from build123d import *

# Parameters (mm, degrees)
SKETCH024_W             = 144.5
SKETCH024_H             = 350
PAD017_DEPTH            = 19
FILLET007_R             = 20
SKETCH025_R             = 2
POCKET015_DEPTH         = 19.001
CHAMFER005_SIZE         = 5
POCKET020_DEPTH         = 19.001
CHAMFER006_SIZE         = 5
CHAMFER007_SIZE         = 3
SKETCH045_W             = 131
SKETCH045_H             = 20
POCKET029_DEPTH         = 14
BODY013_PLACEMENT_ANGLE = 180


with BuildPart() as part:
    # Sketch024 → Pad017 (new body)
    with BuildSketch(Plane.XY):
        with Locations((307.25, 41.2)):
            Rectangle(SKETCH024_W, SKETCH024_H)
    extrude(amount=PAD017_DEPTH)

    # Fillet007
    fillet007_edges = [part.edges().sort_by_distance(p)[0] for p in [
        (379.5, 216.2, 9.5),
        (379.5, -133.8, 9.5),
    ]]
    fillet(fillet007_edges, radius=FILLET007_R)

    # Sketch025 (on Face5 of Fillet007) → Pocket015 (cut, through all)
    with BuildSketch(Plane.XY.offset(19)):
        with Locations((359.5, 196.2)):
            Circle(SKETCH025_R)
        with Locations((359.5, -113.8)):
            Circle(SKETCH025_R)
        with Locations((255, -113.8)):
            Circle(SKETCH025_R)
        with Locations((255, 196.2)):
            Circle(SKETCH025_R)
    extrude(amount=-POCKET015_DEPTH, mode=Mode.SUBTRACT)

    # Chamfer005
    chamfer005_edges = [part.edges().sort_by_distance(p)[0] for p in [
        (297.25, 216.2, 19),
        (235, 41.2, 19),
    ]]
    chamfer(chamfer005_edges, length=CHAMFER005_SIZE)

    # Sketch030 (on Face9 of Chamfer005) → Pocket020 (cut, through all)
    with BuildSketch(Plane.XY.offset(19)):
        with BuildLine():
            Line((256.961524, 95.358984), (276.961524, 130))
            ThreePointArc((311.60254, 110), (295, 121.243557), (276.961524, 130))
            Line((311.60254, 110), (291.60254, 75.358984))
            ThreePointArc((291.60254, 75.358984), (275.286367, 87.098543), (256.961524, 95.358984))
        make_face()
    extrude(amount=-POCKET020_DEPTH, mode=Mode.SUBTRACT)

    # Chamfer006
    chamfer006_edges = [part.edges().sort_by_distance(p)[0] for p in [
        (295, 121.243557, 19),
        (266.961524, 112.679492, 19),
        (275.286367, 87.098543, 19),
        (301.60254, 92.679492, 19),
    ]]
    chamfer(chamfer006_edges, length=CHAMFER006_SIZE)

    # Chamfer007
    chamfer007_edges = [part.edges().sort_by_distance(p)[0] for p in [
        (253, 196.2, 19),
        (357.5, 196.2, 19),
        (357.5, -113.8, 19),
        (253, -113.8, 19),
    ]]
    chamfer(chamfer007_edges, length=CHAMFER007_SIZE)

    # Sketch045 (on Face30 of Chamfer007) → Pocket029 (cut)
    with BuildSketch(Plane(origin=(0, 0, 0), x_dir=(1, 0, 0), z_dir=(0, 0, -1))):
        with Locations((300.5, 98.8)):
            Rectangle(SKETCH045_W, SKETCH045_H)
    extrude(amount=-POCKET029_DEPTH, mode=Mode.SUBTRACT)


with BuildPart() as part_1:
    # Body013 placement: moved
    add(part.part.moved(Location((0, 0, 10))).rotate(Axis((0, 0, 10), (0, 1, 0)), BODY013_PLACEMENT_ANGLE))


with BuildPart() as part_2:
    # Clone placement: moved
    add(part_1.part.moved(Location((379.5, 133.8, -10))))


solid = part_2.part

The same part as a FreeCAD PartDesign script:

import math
import FreeCAD as App
import Part
import Sketcher
from FreeCAD import Vector
Q = App.Units.Quantity


def edges_at(feature, points):
    """Names of the edges that pass closest to the given points."""
    edges = feature.Shape.Edges
    near = lambda p: min(range(len(edges)), key=lambda i: edges[i].distToShape(Part.Vertex(*p))[0])
    return sorted({f"Edge{near(p) + 1}" for p in points})

doc = App.newDocument("Part")
body = doc.addObject("PartDesign::Body", "Body")

# Sketch on XY plane
sketch1 = body.newObject("Sketcher::SketchObject", "Sketch")
sketch1.AttachmentSupport = (doc.getObject("XY_Plane"), [""])
sketch1.MapMode = "FlatFace"
sketch1.addGeometry(Part.LineSegment(Vector(235, 216, 0), Vector(235, -134, 0)), False)
sketch1.addGeometry(Part.LineSegment(Vector(235, -134, 0), Vector(380, -134, 0)), False)
sketch1.addGeometry(Part.LineSegment(Vector(380, -134, 0), Vector(380, 216, 0)), False)
sketch1.addGeometry(Part.LineSegment(Vector(380, 216, 0), Vector(235, 216, 0)), False)
sketch1.addConstraint(Sketcher.Constraint("Coincident", 0, 2, 1, 1))
sketch1.addConstraint(Sketcher.Constraint("Coincident", 1, 2, 2, 1))
sketch1.addConstraint(Sketcher.Constraint("Coincident", 2, 2, 3, 1))
sketch1.addConstraint(Sketcher.Constraint("Coincident", 3, 2, 0, 1))
sketch1.addConstraint(Sketcher.Constraint("Vertical", 0))
sketch1.addConstraint(Sketcher.Constraint("Horizontal", 1))
sketch1.addConstraint(Sketcher.Constraint("Vertical", 2))
sketch1.addConstraint(Sketcher.Constraint("Horizontal", 3))
sketch1.addConstraint(Sketcher.Constraint("DistanceY", 0, 2, 0, 1, 350.0))
sketch1.addConstraint(Sketcher.Constraint("DistanceX", 1, 1, 1, 2, 144.5))
sketch1.addConstraint(Sketcher.Constraint("DistanceX", -1, 1, 0, 2, 235.0))
sketch1.addConstraint(Sketcher.Constraint("DistanceY", 0, 2, -1, 1, 133.8))
pad1 = body.newObject("PartDesign::Pad", "Pad")
pad1.Profile = sketch1
pad1.Length = 19
doc.recompute()

fillet = body.newObject("PartDesign::Fillet", "Fillet")
fillet.Base = (pad1, edges_at(pad1, [(379.5, 216.2, 9.5), (379.5, -133.8, 9.5)]))
fillet.Radius = 20

# Sketch on XY plane
sketch2 = body.newObject("Sketcher::SketchObject", "Sketch001")
sketch2.AttachmentSupport = (doc.getObject("XY_Plane"), [""])
sketch2.MapMode = "FlatFace"
sketch2.AttachmentOffset = App.Placement(Vector(0, 0, 19), App.Rotation())
sketch2.addGeometry(Part.Circle(Vector(359.5, 196.2, 0), Vector(0, 0, 1), 2), False)
sketch2.addGeometry(Part.Circle(Vector(359.5, -113.8, 0), Vector(0, 0, 1), 2), False)
sketch2.addGeometry(Part.Circle(Vector(255, -113.8, 0), Vector(0, 0, 1), 2), False)
sketch2.addGeometry(Part.Circle(Vector(255, 196.2, 0), Vector(0, 0, 1), 2), False)
sketch2.addConstraint(Sketcher.Constraint("Equal", 0, 1))
sketch2.addConstraint(Sketcher.Constraint("Equal", 1, 2))
sketch2.addConstraint(Sketcher.Constraint("Equal", 2, 3))
sketch2.addConstraint(Sketcher.Constraint("Horizontal", 1, 3, 2, 3))
sketch2.addConstraint(Sketcher.Constraint("Horizontal", 0, 3, 3, 3))
sketch2.addConstraint(Sketcher.Constraint("Vertical", 0, 3, 1, 3))
sketch2.addConstraint(Sketcher.Constraint("Vertical", 2, 3, 3, 3))
sketch2.addConstraint(Sketcher.Constraint("Diameter", 0, 4.0))
sketch2.addConstraint(Sketcher.Constraint("DistanceX", -1, 1, 2, 3, 255.0))
sketch2.addConstraint(Sketcher.Constraint("DistanceY", 1, 3, 0, 3, 310.0))
sketch2.addConstraint(Sketcher.Constraint("DistanceX", -1, 1, 0, 3, 359.5))
sketch2.addConstraint(Sketcher.Constraint("DistanceY", -1, 1, 0, 3, 196.2))
pocket1 = body.newObject("PartDesign::Pocket", "Pocket")
pocket1.Profile = sketch2
pocket1.Type = "ThroughAll"
doc.recompute()

chamfer = body.newObject("PartDesign::Chamfer", "Chamfer")
chamfer.Base = (pocket1, edges_at(pocket1, [(297.25, 216.2, 19), (235, 41.2, 19)]))
chamfer.Size = 5

# Sketch on XY plane
sketch3 = body.newObject("Sketcher::SketchObject", "Sketch002")
sketch3.AttachmentSupport = (doc.getObject("XY_Plane"), [""])
sketch3.MapMode = "FlatFace"
sketch3.AttachmentOffset = App.Placement(Vector(0, 0, 19), App.Rotation())
sketch3.addGeometry(Part.LineSegment(Vector(277, 130, 0), Vector(257, 95, 0)), False)
sketch3.addGeometry(Part.ArcOfCircle(Part.Circle(Vector(225, 0, 0), Vector(0, 0, 1), 101), math.radians(49), math.radians(71)), False)
sketch3.addGeometry(Part.LineSegment(Vector(292, 75, 0), Vector(312, 110, 0)), False)
sketch3.addGeometry(Part.ArcOfCircle(Part.Circle(Vector(225, 0, 0), Vector(0, 0, 1), 140), math.radians(51.79), math.radians(68.21)), False)
sketch3.addConstraint(Sketcher.Constraint("Coincident", 0, 2, 1, 2))
sketch3.addConstraint(Sketcher.Constraint("Coincident", 1, 1, 2, 1))
sketch3.addConstraint(Sketcher.Constraint("Coincident", 2, 2, 3, 1))
sketch3.addConstraint(Sketcher.Constraint("Coincident", 3, 2, 0, 1))
sketch3.addConstraint(Sketcher.Constraint("Parallel", 0, 2))
sketch3.addConstraint(Sketcher.Constraint("Equal", 0, 2))
sketch3.addConstraint(Sketcher.Constraint("Angle", 0, Q("-120 deg")))
sketch3.addConstraint(Sketcher.Constraint("Distance", 0, 40.0))
sketch3.addConstraint(Sketcher.Constraint("DistanceY", -1, 1, 2, 2, 110.0))
sketch3.addConstraint(Sketcher.Constraint("DistanceY", -1, 1, 3, 2, 130.0))
sketch3.addConstraint(Sketcher.Constraint("Radius", 1, 100.572716))
sketch3.addConstraint(Sketcher.Constraint("Radius", 3, 139.999945))
sketch3.addConstraint(Sketcher.Constraint("DistanceX", -1, 1, 1, 3, 225.000009))
sketch3.addConstraint(Sketcher.Constraint("DistanceX", -1, 1, 1, 1, 291.60254))
pocket2 = body.newObject("PartDesign::Pocket", "Pocket001")
pocket2.Profile = sketch3
pocket2.Type = "ThroughAll"
doc.recompute()

chamfer2 = body.newObject("PartDesign::Chamfer", "Chamfer001")
chamfer2.Base = (pocket2, edges_at(pocket2, [
    (295, 121.244, 19),
    (266.962, 112.679, 19),
    (275.286, 87.099, 19),
    (301.603, 92.679, 19),
]))
chamfer2.Size = 5
doc.recompute()

chamfer3 = body.newObject("PartDesign::Chamfer", "Chamfer002")
chamfer3.Base = (chamfer2, edges_at(chamfer2, [
    (253, 196.2, 19),
    (357.5, 196.2, 19),
    (357.5, -113.8, 19),
    (253, -113.8, 19),
]))
chamfer3.Size = 3

# Sketch on XY plane
sketch4 = body.newObject("Sketcher::SketchObject", "Sketch003")
sketch4.AttachmentSupport = (doc.getObject("XY_Plane"), [""])
sketch4.MapMode = "FlatFace"
sketch4.addGeometry(Part.LineSegment(Vector(235, -109, 0), Vector(235, -89, 0)), False)
sketch4.addGeometry(Part.LineSegment(Vector(235, -89, 0), Vector(366, -89, 0)), False)
sketch4.addGeometry(Part.LineSegment(Vector(366, -89, 0), Vector(366, -109, 0)), False)
sketch4.addGeometry(Part.LineSegment(Vector(366, -109, 0), Vector(235, -109, 0)), False)
sketch4.addConstraint(Sketcher.Constraint("Coincident", 0, 2, 1, 1))
sketch4.addConstraint(Sketcher.Constraint("Coincident", 1, 2, 2, 1))
sketch4.addConstraint(Sketcher.Constraint("Coincident", 2, 2, 3, 1))
sketch4.addConstraint(Sketcher.Constraint("Coincident", 3, 2, 0, 1))
sketch4.addConstraint(Sketcher.Constraint("Vertical", 0))
sketch4.addConstraint(Sketcher.Constraint("Horizontal", 1))
sketch4.addConstraint(Sketcher.Constraint("Vertical", 2))
sketch4.addConstraint(Sketcher.Constraint("Horizontal", 3))
sketch4.addConstraint(Sketcher.Constraint("DistanceX", 1, 1, 1, 2, 131.0))
sketch4.addConstraint(Sketcher.Constraint("DistanceY", 0, 1, 0, 2, 20.0))
sketch4.addConstraint(Sketcher.Constraint("DistanceX", -1, 1, 0, 2, 235.0))
sketch4.addConstraint(Sketcher.Constraint("DistanceY", 0, 2, -1, 1, 88.8))
pocket3 = body.newObject("PartDesign::Pocket", "Pocket002")
pocket3.Profile = sketch4
pocket3.Length = 14
pocket3.Reversed = True
body2 = doc.addObject("PartDesign::Body", "Body001")
doc.recompute()

body.Placement = App.Placement(Vector(0, 0, 10), App.Rotation(Vector(0, 1, 0), 180))
boolean = body2.newObject("PartDesign::Boolean", "Boolean")
boolean.Type = "Fuse"
boolean.addObjects([body])
body3 = doc.addObject("PartDesign::Body", "Body002")
doc.recompute()

body2.Placement = App.Placement(Vector(379.5, 133.8, -10), App.Rotation(Vector(0, 0, 1), 0))
boolean2 = body3.newObject("PartDesign::Boolean", "Boolean001")
boolean2.Type = "Fuse"
boolean2.addObjects([body2])

doc.recompute()
